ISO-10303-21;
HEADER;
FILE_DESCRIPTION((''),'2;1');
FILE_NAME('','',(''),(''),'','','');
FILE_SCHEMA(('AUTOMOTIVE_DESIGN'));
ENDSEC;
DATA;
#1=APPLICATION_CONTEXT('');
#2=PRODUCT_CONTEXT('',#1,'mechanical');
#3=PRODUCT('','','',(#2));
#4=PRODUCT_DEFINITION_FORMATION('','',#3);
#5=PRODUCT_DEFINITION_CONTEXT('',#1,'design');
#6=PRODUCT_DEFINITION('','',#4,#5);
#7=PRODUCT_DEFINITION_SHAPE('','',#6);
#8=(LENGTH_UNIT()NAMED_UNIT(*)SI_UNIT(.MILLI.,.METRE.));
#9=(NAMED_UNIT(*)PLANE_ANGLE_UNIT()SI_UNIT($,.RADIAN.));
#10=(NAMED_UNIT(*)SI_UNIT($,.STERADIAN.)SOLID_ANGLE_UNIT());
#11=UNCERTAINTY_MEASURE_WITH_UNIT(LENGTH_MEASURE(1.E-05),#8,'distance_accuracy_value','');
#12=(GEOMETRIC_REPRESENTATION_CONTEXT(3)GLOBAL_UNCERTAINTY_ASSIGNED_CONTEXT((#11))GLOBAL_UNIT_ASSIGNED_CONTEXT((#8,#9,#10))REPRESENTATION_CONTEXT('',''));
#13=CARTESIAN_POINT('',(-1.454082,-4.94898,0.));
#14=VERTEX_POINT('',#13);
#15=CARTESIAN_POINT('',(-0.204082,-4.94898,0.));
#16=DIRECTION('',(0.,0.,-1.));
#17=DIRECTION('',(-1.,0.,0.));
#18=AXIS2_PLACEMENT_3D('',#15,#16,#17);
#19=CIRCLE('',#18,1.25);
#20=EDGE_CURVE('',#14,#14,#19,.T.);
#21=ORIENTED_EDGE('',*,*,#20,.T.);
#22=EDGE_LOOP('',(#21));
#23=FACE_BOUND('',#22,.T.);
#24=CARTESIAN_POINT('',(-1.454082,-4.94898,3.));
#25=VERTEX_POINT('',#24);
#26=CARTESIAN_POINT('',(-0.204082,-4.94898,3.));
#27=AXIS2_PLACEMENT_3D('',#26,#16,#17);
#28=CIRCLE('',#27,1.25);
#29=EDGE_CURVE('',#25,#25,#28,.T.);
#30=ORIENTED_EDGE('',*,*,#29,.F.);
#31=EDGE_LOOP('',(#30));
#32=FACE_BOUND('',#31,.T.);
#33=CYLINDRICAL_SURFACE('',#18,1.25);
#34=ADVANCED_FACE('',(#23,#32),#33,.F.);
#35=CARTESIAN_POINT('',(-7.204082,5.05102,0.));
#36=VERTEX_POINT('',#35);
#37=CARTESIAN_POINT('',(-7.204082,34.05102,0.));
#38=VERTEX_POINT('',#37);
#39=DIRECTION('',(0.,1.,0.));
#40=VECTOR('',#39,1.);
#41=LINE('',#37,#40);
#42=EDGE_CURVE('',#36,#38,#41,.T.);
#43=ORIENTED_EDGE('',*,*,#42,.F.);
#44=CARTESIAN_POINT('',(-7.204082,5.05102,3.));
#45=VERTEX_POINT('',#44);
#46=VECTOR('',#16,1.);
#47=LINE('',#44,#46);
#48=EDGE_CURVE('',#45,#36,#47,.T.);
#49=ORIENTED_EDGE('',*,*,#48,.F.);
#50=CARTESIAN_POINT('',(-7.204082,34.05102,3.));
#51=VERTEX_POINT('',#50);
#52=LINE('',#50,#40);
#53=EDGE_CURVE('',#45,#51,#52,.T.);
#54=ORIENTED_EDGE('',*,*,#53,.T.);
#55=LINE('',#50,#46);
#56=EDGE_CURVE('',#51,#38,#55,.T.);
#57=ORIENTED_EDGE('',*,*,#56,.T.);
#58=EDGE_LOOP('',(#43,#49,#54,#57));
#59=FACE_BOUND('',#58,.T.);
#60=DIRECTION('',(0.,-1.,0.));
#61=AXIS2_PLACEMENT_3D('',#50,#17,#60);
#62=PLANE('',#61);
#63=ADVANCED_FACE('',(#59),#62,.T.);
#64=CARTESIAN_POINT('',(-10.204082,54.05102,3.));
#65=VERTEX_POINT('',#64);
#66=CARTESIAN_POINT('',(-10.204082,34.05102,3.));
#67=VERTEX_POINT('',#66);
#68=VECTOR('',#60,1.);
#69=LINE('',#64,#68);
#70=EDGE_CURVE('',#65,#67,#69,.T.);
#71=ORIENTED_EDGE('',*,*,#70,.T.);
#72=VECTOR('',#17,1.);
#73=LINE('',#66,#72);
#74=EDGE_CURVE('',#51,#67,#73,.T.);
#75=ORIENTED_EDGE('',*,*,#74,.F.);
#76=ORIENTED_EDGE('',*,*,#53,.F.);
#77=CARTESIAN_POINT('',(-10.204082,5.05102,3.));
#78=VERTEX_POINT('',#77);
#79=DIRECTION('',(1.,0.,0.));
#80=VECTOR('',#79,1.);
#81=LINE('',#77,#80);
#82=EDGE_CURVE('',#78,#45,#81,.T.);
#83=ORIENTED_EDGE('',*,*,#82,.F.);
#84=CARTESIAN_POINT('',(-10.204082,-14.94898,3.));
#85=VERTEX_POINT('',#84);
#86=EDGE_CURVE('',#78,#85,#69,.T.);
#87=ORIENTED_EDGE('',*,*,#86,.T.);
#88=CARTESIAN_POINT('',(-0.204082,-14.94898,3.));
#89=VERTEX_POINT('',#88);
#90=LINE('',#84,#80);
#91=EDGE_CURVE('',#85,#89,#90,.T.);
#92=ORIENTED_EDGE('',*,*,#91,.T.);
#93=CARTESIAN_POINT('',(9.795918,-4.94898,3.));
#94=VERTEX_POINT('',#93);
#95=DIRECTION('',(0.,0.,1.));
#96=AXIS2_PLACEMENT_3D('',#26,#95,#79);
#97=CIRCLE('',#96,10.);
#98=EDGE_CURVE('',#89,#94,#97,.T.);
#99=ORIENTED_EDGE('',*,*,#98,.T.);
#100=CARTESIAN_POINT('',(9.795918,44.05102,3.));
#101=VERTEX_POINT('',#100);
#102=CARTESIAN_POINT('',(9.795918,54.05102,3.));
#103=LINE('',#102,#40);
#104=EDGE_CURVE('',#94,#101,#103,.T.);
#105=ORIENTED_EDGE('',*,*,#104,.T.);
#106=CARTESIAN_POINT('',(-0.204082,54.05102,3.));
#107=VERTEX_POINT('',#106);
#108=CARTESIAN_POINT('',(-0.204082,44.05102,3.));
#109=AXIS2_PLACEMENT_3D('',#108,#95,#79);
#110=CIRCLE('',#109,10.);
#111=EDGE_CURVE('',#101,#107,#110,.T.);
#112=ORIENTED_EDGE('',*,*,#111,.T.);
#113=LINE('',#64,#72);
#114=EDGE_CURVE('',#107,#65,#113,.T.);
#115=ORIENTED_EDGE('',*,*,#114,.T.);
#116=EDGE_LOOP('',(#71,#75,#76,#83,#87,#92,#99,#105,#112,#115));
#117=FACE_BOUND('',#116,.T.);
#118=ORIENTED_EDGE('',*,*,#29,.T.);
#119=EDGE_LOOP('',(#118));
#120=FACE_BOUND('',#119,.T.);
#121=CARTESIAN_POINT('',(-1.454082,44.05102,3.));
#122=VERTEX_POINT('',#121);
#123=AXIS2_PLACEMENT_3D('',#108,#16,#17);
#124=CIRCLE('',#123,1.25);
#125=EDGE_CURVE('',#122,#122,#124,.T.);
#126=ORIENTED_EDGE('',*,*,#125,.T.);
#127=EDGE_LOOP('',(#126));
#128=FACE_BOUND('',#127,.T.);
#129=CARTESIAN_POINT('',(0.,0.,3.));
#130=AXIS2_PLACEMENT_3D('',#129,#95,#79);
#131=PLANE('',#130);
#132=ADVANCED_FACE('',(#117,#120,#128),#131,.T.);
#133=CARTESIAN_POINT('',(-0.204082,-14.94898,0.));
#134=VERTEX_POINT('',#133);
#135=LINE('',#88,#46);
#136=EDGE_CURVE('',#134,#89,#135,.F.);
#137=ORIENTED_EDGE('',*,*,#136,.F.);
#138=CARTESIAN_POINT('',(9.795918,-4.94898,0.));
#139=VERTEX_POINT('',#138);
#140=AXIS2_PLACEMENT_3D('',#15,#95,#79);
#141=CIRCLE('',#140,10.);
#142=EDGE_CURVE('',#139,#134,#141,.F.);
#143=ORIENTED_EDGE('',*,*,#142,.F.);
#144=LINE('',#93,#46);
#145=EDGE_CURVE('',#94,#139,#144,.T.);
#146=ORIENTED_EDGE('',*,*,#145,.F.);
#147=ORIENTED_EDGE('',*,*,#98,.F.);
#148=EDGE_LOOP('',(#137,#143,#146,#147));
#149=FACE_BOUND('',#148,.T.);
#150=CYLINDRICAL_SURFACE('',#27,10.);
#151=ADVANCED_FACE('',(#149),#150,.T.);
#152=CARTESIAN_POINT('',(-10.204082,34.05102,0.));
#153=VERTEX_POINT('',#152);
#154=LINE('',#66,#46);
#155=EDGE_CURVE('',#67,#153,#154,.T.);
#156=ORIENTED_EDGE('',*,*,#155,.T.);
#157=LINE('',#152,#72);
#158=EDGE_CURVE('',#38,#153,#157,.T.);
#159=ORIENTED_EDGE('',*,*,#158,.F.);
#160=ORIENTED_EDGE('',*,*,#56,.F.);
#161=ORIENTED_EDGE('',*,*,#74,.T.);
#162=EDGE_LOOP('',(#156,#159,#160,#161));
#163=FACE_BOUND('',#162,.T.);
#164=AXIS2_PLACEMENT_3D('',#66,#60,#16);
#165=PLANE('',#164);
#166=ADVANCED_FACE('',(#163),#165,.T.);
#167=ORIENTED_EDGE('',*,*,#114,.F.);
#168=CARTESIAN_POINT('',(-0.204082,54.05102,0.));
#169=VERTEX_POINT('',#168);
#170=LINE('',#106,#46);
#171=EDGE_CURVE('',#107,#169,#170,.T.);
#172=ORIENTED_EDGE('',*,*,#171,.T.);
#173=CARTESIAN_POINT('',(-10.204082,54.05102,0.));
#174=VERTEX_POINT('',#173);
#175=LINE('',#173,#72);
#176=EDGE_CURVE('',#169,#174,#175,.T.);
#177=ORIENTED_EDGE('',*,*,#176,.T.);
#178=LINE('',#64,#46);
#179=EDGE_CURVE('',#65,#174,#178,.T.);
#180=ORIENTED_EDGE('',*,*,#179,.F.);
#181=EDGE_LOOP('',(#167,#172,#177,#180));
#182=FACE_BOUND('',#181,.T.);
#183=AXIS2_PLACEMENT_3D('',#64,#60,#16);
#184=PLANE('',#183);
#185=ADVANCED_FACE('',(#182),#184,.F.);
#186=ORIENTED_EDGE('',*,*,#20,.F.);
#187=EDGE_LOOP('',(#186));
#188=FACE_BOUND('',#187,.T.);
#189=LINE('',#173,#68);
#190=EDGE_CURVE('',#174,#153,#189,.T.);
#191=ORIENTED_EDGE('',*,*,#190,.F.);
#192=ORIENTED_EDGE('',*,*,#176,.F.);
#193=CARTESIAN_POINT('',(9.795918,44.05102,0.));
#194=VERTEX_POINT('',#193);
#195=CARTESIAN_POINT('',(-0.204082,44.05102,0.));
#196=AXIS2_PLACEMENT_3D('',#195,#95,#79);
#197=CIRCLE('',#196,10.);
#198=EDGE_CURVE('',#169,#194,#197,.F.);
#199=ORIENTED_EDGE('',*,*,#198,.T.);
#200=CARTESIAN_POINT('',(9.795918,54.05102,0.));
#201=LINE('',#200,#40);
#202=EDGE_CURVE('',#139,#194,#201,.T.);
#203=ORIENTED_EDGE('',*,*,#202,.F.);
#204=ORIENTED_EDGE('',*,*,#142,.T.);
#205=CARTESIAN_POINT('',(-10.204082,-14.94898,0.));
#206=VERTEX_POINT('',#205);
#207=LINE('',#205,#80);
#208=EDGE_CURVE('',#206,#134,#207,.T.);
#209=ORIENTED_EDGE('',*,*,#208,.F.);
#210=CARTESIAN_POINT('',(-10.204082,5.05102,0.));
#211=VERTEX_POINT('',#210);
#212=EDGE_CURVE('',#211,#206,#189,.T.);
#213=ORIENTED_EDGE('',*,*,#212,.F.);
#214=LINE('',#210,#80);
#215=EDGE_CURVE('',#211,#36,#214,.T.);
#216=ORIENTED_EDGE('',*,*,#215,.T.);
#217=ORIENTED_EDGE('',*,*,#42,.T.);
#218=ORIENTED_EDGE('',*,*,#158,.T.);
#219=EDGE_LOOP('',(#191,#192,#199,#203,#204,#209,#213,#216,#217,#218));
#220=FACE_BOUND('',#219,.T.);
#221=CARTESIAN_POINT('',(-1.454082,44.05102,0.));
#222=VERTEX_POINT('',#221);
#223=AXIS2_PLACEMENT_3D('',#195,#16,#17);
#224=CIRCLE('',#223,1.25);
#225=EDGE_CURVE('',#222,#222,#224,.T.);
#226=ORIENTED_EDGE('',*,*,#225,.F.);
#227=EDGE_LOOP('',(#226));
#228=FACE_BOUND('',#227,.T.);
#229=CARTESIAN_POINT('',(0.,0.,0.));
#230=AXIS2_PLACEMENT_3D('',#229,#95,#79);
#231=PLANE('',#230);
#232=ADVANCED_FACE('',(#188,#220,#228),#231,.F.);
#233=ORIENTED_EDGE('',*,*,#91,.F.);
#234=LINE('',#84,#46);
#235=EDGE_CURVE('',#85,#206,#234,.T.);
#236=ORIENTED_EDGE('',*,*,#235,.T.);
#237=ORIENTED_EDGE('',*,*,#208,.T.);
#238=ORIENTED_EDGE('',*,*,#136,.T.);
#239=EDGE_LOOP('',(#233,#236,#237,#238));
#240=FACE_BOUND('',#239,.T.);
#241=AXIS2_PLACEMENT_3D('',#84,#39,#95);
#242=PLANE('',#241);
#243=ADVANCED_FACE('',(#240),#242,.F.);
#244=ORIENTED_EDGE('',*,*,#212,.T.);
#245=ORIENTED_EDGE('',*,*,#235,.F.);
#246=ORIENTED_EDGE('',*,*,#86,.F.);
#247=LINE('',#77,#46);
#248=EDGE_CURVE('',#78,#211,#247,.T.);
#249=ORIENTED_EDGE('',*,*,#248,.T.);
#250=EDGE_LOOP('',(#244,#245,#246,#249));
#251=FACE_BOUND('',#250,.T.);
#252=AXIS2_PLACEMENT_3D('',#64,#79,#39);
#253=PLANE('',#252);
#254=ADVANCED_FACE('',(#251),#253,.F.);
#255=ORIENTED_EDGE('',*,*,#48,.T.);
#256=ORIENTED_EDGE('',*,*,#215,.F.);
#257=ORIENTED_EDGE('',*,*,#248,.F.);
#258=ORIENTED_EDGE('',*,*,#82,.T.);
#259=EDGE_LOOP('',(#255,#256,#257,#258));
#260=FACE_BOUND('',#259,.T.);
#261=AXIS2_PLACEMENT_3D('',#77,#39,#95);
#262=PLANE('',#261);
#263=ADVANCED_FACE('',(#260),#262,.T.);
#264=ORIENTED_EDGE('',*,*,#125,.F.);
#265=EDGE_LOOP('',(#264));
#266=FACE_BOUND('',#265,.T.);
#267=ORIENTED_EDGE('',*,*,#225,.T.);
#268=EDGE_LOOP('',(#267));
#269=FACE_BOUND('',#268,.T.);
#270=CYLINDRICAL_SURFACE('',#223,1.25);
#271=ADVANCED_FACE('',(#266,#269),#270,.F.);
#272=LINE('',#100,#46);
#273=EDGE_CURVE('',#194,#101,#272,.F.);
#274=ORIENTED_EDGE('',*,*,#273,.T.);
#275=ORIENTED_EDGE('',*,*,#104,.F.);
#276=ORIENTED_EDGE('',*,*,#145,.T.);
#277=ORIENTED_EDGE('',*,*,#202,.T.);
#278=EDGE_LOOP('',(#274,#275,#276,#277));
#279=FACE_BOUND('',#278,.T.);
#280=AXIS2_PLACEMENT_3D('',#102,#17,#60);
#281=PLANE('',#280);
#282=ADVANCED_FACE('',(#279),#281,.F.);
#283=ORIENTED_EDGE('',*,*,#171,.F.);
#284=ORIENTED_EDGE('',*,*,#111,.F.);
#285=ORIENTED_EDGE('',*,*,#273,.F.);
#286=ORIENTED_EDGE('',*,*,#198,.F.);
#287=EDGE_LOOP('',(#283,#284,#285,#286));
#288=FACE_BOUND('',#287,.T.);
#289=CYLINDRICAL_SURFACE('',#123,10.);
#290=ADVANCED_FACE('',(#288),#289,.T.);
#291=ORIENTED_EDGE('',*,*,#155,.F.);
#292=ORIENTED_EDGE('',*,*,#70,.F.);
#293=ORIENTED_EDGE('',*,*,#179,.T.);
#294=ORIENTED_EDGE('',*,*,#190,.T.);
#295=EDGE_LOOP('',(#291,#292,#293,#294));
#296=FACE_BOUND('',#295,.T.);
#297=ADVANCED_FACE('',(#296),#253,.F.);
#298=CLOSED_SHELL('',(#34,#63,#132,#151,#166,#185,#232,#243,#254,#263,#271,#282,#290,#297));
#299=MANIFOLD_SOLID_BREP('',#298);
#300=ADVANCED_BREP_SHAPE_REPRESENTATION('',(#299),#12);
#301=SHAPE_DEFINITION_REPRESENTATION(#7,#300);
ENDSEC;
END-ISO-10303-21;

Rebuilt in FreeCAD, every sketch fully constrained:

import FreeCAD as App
import Part
import Sketcher

V = App.Vector


def edges_at(feature, points):
    """Names of the edges that pass closest to the given points."""
    edges = feature.Shape.Edges
    near = lambda p: min(range(len(edges)), key=lambda i: edges[i].distToShape(Part.Vertex(*p))[0])
    return sorted({f"Edge{near(p) + 1}" for p in points})


def add_polygon(sketch, points):
    """Adds a closed chain of lines whose ends are joined by coincident constraints."""
    first, n = sketch.GeometryCount, len(points)
    for a, b in zip(points, points[1:] + points[:1]):
        sketch.addGeometry(Part.LineSegment(App.Vector(*a, 0), App.Vector(*b, 0)), False)
    for i in range(n):
        sketch.addConstraint(Sketcher.Constraint("Coincident", first + i, 2, first + (i + 1) % n, 1))

doc = App.newDocument("Part")
body = doc.addObject("PartDesign::Body", "Body")

# Sketch on XY plane
sketch1 = doc.addObject("Sketcher::SketchObject", "Sketch")
body.addObject(sketch1)
sketch1.AttachmentSupport = (doc.XY_Plane, [""])
sketch1.MapMode = "FlatFace"
add_polygon(sketch1, [(-10, 54), (-10, -15), (10, -15), (10, 54)])  # lines 0-3
sketch1.addConstraint([
    Sketcher.Constraint("Vertical", 0),
    Sketcher.Constraint("Horizontal", 1),
    Sketcher.Constraint("Vertical", 2),
    Sketcher.Constraint("Horizontal", 3),
    Sketcher.Constraint("DistanceX", 1, 1, 1, 2, 20.0),
    Sketcher.Constraint("DistanceY", 0, 2, 0, 1, 69.0),
    Sketcher.Constraint("DistanceX", 0, 2, -1, 1, 10.204082),
    Sketcher.Constraint("DistanceY", 0, 2, -1, 1, 14.94898),
])
pad1 = doc.addObject("PartDesign::Pad", "Pad")
body.addObject(pad1)
pad1.Profile = sketch1
pad1.Length = 3

# Sketch on XY plane
sketch2 = doc.addObject("Sketcher::SketchObject", "Sketch001")
body.addObject(sketch2)
sketch2.AttachmentSupport = (doc.XY_Plane, [""])
sketch2.MapMode = "FlatFace"
add_polygon(sketch2, [(-10.2, 34.1), (-10.2, 5.1), (-7.2, 5.1), (-7.2, 34.1)])  # lines 0-3
sketch2.addConstraint([
    Sketcher.Constraint("Vertical", 0),
    Sketcher.Constraint("Horizontal", 1),
    Sketcher.Constraint("Vertical", 2),
    Sketcher.Constraint("Horizontal", 3),
    Sketcher.Constraint("DistanceX", 1, 1, 1, 2, 3.0),
    Sketcher.Constraint("DistanceY", 0, 2, 0, 1, 29.0),
    Sketcher.Constraint("DistanceX", 0, 2, -1, 1, 10.204082),
    Sketcher.Constraint("DistanceY", -1, 1, 0, 2, 5.05102),
])
pocket1 = doc.addObject("PartDesign::Pocket", "Pocket")
body.addObject(pocket1)
pocket1.Profile = sketch2
pocket1.Length = 3
pocket1.Reversed = True

# Sketch on XY plane
sketch3 = doc.addObject("Sketcher::SketchObject", "Sketch002")
body.addObject(sketch3)
sketch3.AttachmentSupport = (doc.XY_Plane, [""])
sketch3.MapMode = "FlatFace"
sketch3.addGeometry([
    Part.Circle(V(-0.2, 44.1, 0), V(0, 0, 1), 1.2),
    Part.Circle(V(-0.2, -4.9, 0), V(0, 0, 1), 1.2),
], False)
sketch3.addConstraint([
    Sketcher.Constraint("Equal", 0, 1),
    Sketcher.Constraint("Vertical", 0, 3, 1, 3),
    Sketcher.Constraint("Diameter", 0, 2.5),
    Sketcher.Constraint("DistanceY", 1, 3, 0, 3, 49.0),
    Sketcher.Constraint("DistanceX", 0, 3, -1, 1, 0.204082),
    Sketcher.Constraint("DistanceY", -1, 1, 0, 3, 44.05102),
])
doc.recompute()
hole = doc.addObject("PartDesign::Hole", "Hole")
body.addObject(hole)
hole.Profile = sketch3
hole.ThreadType = "None"
hole.Diameter = 2.5
hole.DepthType = "ThroughAll"
hole.Reversed = True
doc.recompute()

fillet = doc.addObject("PartDesign::Fillet", "Fillet")
body.addObject(fillet)
fillet.Base = (hole, edges_at(hole, [(9.796, 54.051, 1.5), (9.796, -14.949, 1.5)]))
fillet.Radius = 10

doc.recompute()
